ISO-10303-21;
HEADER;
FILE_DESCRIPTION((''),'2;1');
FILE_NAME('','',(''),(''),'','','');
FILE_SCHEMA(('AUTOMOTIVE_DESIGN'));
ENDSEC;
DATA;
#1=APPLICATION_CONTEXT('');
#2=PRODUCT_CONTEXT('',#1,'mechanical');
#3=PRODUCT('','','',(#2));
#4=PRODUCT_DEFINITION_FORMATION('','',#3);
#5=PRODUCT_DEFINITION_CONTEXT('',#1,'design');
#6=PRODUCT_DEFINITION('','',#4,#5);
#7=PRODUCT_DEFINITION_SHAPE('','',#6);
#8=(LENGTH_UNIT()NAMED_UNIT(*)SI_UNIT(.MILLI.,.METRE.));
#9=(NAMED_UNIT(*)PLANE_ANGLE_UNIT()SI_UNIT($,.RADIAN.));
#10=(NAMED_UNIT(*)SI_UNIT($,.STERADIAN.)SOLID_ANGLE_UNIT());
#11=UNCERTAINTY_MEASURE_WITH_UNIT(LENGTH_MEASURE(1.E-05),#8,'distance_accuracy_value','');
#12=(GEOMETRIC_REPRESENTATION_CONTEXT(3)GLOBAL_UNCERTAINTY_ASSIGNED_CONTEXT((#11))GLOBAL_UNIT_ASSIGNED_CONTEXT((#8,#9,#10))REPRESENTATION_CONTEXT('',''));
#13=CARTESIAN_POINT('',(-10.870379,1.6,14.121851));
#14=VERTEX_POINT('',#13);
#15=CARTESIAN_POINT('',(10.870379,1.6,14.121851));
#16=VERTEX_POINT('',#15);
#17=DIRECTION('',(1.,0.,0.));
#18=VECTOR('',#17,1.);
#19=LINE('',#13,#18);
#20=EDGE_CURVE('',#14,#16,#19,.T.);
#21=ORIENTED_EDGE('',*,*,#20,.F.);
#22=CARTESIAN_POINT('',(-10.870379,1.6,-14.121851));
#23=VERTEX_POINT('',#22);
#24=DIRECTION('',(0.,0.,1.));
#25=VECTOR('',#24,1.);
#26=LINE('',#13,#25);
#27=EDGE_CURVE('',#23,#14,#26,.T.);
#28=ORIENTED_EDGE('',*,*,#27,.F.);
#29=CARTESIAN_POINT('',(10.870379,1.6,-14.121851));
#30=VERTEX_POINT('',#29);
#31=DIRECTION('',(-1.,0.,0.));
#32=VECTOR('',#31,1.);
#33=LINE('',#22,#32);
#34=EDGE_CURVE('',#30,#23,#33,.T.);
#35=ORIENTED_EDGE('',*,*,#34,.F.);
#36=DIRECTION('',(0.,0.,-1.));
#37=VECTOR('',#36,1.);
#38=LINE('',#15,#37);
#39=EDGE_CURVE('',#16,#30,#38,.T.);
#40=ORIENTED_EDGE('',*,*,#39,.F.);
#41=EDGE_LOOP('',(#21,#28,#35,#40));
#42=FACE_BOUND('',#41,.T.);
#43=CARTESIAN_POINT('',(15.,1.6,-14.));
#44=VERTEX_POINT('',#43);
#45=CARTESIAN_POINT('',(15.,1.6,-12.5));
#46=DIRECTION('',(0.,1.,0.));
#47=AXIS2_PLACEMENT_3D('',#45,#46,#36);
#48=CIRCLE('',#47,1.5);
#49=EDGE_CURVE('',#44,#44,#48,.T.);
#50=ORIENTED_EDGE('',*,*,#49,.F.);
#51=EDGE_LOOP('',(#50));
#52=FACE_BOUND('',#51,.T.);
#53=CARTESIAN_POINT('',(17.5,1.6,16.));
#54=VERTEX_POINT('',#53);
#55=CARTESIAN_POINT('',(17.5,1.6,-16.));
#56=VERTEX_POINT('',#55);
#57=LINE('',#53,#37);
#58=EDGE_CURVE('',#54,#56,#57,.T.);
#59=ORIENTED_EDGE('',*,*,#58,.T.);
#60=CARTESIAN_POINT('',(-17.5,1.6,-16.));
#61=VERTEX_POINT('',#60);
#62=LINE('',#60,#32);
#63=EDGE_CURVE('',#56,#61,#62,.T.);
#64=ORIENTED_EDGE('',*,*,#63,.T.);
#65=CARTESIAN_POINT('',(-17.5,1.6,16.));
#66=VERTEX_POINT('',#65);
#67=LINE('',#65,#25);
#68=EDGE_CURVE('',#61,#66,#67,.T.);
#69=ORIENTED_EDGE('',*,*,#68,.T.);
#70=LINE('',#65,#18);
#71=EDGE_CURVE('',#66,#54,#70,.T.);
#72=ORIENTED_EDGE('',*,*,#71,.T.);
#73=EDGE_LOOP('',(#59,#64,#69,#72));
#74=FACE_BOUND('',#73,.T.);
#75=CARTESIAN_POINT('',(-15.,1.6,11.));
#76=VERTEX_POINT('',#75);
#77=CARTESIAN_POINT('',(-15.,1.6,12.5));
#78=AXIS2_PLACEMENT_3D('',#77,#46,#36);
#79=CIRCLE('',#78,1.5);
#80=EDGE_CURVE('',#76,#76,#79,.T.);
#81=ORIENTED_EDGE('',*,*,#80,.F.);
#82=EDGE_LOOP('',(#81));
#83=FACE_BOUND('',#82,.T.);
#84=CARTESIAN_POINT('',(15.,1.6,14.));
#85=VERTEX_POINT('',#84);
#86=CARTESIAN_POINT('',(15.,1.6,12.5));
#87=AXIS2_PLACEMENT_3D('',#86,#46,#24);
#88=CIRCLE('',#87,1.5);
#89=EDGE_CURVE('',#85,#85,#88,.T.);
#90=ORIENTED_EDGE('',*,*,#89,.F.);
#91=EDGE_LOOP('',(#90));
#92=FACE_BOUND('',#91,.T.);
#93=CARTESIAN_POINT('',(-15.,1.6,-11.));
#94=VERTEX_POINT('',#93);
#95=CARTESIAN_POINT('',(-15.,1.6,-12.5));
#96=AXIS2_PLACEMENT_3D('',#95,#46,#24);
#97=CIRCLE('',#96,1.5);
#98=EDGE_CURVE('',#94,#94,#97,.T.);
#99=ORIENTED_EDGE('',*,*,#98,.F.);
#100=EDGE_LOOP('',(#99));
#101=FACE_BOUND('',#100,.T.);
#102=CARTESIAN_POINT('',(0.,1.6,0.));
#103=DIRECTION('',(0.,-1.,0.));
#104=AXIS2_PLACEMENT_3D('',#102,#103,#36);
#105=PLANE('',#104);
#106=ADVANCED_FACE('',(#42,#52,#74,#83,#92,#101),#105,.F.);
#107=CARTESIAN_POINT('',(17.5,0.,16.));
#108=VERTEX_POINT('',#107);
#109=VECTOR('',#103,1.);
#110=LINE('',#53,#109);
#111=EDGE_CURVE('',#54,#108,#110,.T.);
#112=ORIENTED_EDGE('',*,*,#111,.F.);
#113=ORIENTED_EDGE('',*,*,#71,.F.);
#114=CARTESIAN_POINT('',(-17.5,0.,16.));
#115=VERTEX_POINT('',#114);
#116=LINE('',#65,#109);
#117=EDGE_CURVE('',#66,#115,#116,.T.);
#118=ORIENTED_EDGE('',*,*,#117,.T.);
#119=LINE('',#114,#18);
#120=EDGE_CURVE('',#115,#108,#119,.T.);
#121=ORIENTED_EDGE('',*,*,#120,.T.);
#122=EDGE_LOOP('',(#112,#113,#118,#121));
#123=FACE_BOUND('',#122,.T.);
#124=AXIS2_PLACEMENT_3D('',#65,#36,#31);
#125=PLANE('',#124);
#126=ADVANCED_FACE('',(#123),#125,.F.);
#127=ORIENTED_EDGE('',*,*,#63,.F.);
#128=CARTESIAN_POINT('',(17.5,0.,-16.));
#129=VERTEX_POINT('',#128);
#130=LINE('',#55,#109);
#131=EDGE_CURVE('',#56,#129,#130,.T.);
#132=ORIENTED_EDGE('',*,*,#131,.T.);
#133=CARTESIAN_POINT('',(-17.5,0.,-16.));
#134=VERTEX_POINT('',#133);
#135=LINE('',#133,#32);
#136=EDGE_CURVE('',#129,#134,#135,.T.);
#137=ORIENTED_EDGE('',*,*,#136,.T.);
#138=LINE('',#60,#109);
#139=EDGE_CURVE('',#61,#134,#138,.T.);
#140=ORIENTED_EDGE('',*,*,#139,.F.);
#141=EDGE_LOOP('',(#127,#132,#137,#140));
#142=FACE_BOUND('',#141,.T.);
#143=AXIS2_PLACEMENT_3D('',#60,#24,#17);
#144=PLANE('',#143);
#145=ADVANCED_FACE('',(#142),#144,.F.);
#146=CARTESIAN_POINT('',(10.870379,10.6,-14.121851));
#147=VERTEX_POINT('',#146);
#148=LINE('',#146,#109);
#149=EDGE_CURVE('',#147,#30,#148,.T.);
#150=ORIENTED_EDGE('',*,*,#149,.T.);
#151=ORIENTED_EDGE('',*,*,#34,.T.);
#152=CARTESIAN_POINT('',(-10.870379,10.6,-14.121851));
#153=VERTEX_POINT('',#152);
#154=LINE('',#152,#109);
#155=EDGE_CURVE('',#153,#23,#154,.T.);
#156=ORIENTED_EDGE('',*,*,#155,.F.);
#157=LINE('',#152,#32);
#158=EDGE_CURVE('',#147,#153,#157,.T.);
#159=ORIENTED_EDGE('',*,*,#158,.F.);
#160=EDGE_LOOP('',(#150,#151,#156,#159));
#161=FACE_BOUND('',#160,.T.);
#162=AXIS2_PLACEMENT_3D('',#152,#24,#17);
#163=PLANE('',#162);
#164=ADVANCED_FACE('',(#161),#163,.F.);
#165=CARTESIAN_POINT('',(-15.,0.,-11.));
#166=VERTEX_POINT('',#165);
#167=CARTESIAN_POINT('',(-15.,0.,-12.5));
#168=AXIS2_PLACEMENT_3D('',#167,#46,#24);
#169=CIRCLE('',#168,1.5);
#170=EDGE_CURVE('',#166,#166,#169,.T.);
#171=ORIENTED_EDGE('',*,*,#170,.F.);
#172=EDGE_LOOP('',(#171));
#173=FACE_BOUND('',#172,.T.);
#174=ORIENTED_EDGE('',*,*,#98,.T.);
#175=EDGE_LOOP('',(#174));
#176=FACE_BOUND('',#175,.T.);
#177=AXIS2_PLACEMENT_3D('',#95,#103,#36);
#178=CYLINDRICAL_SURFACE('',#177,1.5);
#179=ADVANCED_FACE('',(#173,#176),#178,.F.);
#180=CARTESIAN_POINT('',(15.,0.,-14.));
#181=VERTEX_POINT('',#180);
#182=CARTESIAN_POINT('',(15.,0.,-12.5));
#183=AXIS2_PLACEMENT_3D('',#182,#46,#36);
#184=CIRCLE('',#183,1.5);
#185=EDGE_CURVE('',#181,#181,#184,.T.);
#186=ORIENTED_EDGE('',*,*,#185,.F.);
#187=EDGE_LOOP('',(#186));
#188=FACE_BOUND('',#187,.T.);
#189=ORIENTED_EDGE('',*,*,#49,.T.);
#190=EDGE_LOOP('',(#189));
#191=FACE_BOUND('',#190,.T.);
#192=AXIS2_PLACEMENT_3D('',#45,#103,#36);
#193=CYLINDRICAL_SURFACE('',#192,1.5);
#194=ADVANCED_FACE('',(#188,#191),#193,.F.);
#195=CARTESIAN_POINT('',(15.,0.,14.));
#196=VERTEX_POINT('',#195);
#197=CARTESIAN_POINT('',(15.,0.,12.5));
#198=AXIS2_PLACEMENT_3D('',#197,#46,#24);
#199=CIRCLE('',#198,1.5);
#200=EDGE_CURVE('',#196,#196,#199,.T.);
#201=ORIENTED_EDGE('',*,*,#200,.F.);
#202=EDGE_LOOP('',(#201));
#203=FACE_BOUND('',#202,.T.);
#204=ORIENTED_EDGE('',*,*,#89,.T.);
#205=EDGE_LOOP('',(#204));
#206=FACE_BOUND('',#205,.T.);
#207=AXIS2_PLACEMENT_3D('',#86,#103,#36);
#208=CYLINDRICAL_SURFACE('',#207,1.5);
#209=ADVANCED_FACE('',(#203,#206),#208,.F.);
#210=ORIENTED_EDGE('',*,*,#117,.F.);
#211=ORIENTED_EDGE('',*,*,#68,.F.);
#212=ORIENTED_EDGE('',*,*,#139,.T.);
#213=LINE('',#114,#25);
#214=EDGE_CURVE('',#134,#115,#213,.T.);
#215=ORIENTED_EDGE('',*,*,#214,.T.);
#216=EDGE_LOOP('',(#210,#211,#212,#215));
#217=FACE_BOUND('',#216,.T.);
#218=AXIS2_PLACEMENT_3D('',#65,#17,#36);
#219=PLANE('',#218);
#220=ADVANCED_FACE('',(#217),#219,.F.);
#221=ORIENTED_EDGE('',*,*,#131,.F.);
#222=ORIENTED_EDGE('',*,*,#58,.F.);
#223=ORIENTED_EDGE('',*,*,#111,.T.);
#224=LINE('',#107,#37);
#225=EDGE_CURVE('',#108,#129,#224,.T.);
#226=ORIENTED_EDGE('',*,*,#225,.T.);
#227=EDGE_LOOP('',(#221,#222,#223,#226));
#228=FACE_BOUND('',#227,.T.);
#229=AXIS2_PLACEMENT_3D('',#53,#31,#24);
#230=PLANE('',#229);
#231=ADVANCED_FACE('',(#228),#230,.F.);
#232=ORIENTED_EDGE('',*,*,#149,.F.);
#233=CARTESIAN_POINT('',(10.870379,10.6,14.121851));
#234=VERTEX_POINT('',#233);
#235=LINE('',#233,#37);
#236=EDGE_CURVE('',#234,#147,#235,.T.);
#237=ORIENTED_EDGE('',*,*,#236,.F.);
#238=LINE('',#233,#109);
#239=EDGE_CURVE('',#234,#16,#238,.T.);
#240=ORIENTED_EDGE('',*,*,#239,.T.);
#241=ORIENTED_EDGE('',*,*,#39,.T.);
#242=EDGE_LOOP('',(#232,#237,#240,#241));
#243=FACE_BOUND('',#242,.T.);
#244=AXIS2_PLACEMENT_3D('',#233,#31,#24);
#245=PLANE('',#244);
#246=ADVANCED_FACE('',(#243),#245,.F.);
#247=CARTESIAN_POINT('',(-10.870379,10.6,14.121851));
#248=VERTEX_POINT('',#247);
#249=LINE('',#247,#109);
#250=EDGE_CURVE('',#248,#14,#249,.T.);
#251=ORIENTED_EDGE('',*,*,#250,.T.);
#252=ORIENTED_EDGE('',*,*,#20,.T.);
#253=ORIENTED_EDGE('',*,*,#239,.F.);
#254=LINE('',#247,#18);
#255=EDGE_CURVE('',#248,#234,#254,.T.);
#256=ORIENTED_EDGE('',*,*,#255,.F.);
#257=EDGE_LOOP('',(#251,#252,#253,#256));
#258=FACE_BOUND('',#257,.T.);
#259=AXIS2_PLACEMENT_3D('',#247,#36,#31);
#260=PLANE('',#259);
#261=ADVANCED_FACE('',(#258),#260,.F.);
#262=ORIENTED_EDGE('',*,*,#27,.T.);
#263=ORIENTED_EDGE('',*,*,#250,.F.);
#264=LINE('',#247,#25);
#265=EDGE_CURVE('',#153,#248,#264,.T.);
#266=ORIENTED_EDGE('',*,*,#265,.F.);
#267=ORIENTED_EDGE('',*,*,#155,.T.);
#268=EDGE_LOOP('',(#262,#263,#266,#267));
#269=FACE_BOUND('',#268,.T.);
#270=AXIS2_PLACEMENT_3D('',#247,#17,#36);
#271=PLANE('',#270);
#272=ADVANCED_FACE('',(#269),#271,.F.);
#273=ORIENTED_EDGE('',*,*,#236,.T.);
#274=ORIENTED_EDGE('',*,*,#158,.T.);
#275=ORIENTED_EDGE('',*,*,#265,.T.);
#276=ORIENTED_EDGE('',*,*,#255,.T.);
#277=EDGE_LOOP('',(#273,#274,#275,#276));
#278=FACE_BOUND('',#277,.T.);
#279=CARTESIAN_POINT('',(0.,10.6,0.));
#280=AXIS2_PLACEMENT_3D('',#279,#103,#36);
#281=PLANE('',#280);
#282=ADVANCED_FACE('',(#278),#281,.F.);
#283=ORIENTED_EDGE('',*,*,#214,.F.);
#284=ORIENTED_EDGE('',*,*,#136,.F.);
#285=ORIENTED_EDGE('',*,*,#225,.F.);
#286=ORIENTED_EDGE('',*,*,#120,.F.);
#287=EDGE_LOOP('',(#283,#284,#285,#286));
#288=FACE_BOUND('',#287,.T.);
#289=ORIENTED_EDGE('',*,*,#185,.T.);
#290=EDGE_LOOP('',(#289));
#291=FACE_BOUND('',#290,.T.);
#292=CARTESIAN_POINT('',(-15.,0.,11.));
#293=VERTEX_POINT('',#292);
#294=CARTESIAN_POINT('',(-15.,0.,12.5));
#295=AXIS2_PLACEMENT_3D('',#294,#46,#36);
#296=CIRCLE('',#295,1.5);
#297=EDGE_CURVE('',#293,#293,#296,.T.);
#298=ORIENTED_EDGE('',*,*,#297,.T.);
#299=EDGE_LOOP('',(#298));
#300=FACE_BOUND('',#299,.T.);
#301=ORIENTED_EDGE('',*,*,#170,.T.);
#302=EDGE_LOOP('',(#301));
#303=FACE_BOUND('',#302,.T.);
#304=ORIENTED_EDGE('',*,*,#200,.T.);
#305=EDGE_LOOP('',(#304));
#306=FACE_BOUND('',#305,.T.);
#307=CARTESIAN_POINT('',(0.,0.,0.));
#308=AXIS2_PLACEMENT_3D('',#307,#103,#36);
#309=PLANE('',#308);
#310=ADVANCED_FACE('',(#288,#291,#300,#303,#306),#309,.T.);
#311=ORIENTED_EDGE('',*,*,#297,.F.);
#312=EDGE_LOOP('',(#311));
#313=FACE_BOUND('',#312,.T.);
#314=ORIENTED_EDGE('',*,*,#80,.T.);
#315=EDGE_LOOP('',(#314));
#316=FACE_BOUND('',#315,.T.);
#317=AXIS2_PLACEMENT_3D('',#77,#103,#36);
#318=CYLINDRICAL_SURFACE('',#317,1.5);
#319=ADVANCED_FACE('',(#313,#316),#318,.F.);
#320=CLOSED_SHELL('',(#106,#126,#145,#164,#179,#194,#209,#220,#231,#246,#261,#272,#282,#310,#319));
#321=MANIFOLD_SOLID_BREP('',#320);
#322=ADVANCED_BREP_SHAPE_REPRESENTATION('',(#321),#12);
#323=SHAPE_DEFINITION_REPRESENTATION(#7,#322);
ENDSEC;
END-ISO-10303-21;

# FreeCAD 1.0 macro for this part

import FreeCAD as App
import Part
import Sketcher

V = App.Vector
Q = App.Units.Quantity

doc = App.newDocument("Part")
body = doc.addObject("PartDesign::Body", "Body")

# Sketch on XZ plane
sketch1 = body.newObject("Sketcher::SketchObject", "Sketch")
sketch1.AttachmentSupport = (doc.getObject("XZ_Plane"), [""])
sketch1.MapMode = "FlatFace"
sketch1.addGeometry([
    Part.LineSegment(V(-17.5, -16, 0), V(-17.5, 16, 0)),  # 0
    Part.LineSegment(V(-17.5, 16, 0), V(17.5, 16, 0)),  # 1
    Part.LineSegment(V(17.5, 16, 0), V(17.5, -16, 0)),  # 2
    Part.LineSegment(V(17.5, -16, 0), V(-17.5, -16, 0)),  # 3
    Part.Circle(V(-15, 12.5, 0), V(0, 0, 1), 1.5),  # 4
    Part.Circle(V(15, 12.5, 0), V(0, 0, 1), 1.5),  # 5
    Part.Circle(V(-15, -12.5, 0), V(0, 0, 1), 1.5),  # 6
    Part.Circle(V(15, -12.5, 0), V(0, 0, 1), 1.5),  # 7
], False)
sketch1.addConstraint([
    Sketcher.Constraint("Coincident", 0, 2, 1, 1),
    Sketcher.Constraint("Coincident", 1, 2, 2, 1),
    Sketcher.Constraint("Coincident", 2, 2, 3, 1),
    Sketcher.Constraint("Coincident", 3, 2, 0, 1),
    Sketcher.Constraint("Vertical", 0),
    Sketcher.Constraint("Horizontal", 1),
    Sketcher.Constraint("Vertical", 2),
    Sketcher.Constraint("Horizontal", 3),
    Sketcher.Constraint("Equal", 4, 5),
    Sketcher.Constraint("Equal", 5, 6),
    Sketcher.Constraint("Equal", 6, 7),
    Sketcher.Constraint("Symmetric", 5, 3, 6, 3, -1, 1),
    Sketcher.Constraint("Symmetric", 4, 3, 7, 3, -1, 1),
    Sketcher.Constraint("Symmetric", 0, 2, 2, 2, -1, 1),
    Sketcher.Constraint("Symmetric", 4, 3, 5, 3, -2),
    Sketcher.Constraint("Diameter", 4, Q("3 mm")),
    Sketcher.Constraint("DistanceX", 1, 1, 1, 2, Q("35 mm")),
    Sketcher.Constraint("DistanceY", 0, 1, 0, 2, Q("32 mm")),
    Sketcher.Constraint("DistanceX", 4, 3, -1, 1, Q("15 mm")),
    Sketcher.Constraint("DistanceY", 6, 3, 4, 3, Q("25 mm")),
])
pad1 = body.newObject("PartDesign::Pad", "Pad")
pad1.Profile = sketch1
pad1.Length = 1.6
pad1.Reversed = True

# Sketch on XZ plane
sketch2 = body.newObject("Sketcher::SketchObject", "Sketch001")
sketch2.AttachmentSupport = (doc.getObject("XZ_Plane"), [""])
sketch2.MapMode = "FlatFace"
sketch2.AttachmentOffset = App.Placement(V(0, 0, -1.6), App.Rotation())
sketch2.addGeometry([
    Part.LineSegment(V(-11, -14, 0), V(-11, 14, 0)),
    Part.LineSegment(V(-11, 14, 0), V(11, 14, 0)),
    Part.LineSegment(V(11, 14, 0), V(11, -14, 0)),
    Part.LineSegment(V(11, -14, 0), V(-11, -14, 0)),
], False)
sketch2.addConstraint([
    Sketcher.Constraint("Coincident", 0, 2, 1, 1),
    Sketcher.Constraint("Coincident", 1, 2, 2, 1),
    Sketcher.Constraint("Coincident", 2, 2, 3, 1),
    Sketcher.Constraint("Coincident", 3, 2, 0, 1),
    Sketcher.Constraint("Vertical", 0),
    Sketcher.Constraint("Horizontal", 1),
    Sketcher.Constraint("Vertical", 2),
    Sketcher.Constraint("Horizontal", 3),
    Sketcher.Constraint("Symmetric", 0, 2, 2, 2, -1, 1),
    Sketcher.Constraint("DistanceX", 1, 1, 1, 2, Q("21.740758 mm")),
    Sketcher.Constraint("DistanceY", 0, 1, 0, 2, Q("28.243702 mm")),
])
pad2 = body.newObject("PartDesign::Pad", "Pad001")
pad2.Profile = sketch2
pad2.Length = 9
pad2.Reversed = True

doc.recompute()
